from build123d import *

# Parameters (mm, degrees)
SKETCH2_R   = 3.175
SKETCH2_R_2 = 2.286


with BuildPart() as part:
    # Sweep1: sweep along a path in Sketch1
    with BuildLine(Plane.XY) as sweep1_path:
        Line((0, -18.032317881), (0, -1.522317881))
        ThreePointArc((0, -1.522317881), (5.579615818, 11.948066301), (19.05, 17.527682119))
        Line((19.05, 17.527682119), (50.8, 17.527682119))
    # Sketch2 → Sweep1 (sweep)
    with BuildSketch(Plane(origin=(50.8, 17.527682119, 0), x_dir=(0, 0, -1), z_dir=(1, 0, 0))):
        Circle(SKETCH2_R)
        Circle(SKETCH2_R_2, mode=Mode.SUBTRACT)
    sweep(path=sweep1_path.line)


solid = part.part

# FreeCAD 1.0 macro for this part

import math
import FreeCAD as App
import Part
import Sketcher

V = App.Vector
Q = App.Units.Quantity

doc = App.newDocument("Part")
body = doc.addObject("PartDesign::Body", "Body")

# Sketch on YZ plane
sketch1 = body.newObject("Sketcher::SketchObject", "Sketch")
sketch1.AttachmentSupport = (doc.getObject("YZ_Plane"), [""])
sketch1.MapMode = "FlatFace"
sketch1.AttachmentOffset = App.Placement(V(0, 0, 2 * 25.4), App.Rotation())
sketch1.addGeometry([
    Part.Circle(V(17.5, 0, 0), V(0, 0, 1), 3.2),
    Part.Circle(V(17.5, 0, 0), V(0, 0, 1), 2.3),
], False)
sketch1.addConstraint([
    Sketcher.Constraint("Coincident", 1, 3, 0, 3),
    Sketcher.Constraint("PointOnObject", 0, 3, -1),
    Sketcher.Constraint("Diameter", 0, Q("0.25 in")),
    Sketcher.Constraint("Diameter", 1, Q("0.18 in")),
    Sketcher.Constraint("DistanceX", -1, 1, 0, 3, Q("17.527682 mm")),
])

# Sketch on XY plane
sketch2 = body.newObject("Sketcher::SketchObject", "Sketch001")
sketch2.AttachmentSupport = (doc.getObject("XY_Plane"), [""])
sketch2.MapMode = "FlatFace"
sketch2.addGeometry([
    Part.LineSegment(V(0, -18, 0), V(0, -2, 0)),
    Part.ArcOfCircle(Part.Circle(V(19, -2, 0), V(0, 0, 1), 19), math.radians(90), math.radians(180)),
    Part.LineSegment(V(19, 18, 0), V(51, 18, 0)),
], False)
sketch2.addConstraint([
    Sketcher.Constraint("Tangent", 0, 2, 1, 2),
    Sketcher.Constraint("Tangent", 1, 1, 2, 1),
    Sketcher.Constraint("Vertical", 0),
    Sketcher.Constraint("Horizontal", 2),
    Sketcher.Constraint("PointOnObject", 0, 1, -2),
    Sketcher.Constraint("Radius", 1, Q("0.75 in")),
    Sketcher.Constraint("DistanceX", -1, 1, 2, 2, Q("2 in")),
    Sketcher.Constraint("DistanceY", 0, 1, 0, 2, Q("0.65 in")),
    Sketcher.Constraint("DistanceY", 1, 3, -1, 1, Q("1.522318 mm")),
])
doc.recompute()

additivepipe = body.newObject("PartDesign::AdditivePipe", "AdditivePipe")
additivepipe.Profile = sketch1
additivepipe.Spine = (sketch2, ["Edge1", "Edge2", "Edge3"])

doc.recompute()
